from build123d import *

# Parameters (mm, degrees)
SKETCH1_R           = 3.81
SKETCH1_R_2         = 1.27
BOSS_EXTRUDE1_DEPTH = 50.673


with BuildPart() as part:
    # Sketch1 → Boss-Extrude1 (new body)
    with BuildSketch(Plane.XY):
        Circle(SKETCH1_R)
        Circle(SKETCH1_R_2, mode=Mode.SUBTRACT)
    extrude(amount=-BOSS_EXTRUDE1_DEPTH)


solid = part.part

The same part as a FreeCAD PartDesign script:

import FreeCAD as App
import Part
import Sketcher

V = App.Vector
Q = App.Units.Quantity

doc = App.newDocument("Part")
body = doc.addObject("PartDesign::Body", "Body")

sketch1 = body.newObject("Sketcher::SketchObject", "Sketch")
sketch1.AttachmentSupport = (doc.getObject("XY_Plane"), [""])
sketch1.MapMode = "FlatFace"
sketch1.addGeometry([
    Part.Circle(V(0, 0, 0), V(0, 0, 1), 3.81),
    Part.Circle(V(0, 0, 0), V(0, 0, 1), 1.27),
], False)
sketch1.addConstraint([
    Sketcher.Constraint("Coincident", 0, 3, -1, 1),
    Sketcher.Constraint("Coincident", 1, 3, -1, 1),
    Sketcher.Constraint("Diameter", 0, Q("0.3 in")),
    Sketcher.Constraint("Diameter", 1, Q("0.1 in")),
])
pad1 = body.newObject("PartDesign::Pad", "Pad")
pad1.Profile = sketch1
pad1.Length = Q("1.995 in")
pad1.Reversed = True

doc.recompute()
